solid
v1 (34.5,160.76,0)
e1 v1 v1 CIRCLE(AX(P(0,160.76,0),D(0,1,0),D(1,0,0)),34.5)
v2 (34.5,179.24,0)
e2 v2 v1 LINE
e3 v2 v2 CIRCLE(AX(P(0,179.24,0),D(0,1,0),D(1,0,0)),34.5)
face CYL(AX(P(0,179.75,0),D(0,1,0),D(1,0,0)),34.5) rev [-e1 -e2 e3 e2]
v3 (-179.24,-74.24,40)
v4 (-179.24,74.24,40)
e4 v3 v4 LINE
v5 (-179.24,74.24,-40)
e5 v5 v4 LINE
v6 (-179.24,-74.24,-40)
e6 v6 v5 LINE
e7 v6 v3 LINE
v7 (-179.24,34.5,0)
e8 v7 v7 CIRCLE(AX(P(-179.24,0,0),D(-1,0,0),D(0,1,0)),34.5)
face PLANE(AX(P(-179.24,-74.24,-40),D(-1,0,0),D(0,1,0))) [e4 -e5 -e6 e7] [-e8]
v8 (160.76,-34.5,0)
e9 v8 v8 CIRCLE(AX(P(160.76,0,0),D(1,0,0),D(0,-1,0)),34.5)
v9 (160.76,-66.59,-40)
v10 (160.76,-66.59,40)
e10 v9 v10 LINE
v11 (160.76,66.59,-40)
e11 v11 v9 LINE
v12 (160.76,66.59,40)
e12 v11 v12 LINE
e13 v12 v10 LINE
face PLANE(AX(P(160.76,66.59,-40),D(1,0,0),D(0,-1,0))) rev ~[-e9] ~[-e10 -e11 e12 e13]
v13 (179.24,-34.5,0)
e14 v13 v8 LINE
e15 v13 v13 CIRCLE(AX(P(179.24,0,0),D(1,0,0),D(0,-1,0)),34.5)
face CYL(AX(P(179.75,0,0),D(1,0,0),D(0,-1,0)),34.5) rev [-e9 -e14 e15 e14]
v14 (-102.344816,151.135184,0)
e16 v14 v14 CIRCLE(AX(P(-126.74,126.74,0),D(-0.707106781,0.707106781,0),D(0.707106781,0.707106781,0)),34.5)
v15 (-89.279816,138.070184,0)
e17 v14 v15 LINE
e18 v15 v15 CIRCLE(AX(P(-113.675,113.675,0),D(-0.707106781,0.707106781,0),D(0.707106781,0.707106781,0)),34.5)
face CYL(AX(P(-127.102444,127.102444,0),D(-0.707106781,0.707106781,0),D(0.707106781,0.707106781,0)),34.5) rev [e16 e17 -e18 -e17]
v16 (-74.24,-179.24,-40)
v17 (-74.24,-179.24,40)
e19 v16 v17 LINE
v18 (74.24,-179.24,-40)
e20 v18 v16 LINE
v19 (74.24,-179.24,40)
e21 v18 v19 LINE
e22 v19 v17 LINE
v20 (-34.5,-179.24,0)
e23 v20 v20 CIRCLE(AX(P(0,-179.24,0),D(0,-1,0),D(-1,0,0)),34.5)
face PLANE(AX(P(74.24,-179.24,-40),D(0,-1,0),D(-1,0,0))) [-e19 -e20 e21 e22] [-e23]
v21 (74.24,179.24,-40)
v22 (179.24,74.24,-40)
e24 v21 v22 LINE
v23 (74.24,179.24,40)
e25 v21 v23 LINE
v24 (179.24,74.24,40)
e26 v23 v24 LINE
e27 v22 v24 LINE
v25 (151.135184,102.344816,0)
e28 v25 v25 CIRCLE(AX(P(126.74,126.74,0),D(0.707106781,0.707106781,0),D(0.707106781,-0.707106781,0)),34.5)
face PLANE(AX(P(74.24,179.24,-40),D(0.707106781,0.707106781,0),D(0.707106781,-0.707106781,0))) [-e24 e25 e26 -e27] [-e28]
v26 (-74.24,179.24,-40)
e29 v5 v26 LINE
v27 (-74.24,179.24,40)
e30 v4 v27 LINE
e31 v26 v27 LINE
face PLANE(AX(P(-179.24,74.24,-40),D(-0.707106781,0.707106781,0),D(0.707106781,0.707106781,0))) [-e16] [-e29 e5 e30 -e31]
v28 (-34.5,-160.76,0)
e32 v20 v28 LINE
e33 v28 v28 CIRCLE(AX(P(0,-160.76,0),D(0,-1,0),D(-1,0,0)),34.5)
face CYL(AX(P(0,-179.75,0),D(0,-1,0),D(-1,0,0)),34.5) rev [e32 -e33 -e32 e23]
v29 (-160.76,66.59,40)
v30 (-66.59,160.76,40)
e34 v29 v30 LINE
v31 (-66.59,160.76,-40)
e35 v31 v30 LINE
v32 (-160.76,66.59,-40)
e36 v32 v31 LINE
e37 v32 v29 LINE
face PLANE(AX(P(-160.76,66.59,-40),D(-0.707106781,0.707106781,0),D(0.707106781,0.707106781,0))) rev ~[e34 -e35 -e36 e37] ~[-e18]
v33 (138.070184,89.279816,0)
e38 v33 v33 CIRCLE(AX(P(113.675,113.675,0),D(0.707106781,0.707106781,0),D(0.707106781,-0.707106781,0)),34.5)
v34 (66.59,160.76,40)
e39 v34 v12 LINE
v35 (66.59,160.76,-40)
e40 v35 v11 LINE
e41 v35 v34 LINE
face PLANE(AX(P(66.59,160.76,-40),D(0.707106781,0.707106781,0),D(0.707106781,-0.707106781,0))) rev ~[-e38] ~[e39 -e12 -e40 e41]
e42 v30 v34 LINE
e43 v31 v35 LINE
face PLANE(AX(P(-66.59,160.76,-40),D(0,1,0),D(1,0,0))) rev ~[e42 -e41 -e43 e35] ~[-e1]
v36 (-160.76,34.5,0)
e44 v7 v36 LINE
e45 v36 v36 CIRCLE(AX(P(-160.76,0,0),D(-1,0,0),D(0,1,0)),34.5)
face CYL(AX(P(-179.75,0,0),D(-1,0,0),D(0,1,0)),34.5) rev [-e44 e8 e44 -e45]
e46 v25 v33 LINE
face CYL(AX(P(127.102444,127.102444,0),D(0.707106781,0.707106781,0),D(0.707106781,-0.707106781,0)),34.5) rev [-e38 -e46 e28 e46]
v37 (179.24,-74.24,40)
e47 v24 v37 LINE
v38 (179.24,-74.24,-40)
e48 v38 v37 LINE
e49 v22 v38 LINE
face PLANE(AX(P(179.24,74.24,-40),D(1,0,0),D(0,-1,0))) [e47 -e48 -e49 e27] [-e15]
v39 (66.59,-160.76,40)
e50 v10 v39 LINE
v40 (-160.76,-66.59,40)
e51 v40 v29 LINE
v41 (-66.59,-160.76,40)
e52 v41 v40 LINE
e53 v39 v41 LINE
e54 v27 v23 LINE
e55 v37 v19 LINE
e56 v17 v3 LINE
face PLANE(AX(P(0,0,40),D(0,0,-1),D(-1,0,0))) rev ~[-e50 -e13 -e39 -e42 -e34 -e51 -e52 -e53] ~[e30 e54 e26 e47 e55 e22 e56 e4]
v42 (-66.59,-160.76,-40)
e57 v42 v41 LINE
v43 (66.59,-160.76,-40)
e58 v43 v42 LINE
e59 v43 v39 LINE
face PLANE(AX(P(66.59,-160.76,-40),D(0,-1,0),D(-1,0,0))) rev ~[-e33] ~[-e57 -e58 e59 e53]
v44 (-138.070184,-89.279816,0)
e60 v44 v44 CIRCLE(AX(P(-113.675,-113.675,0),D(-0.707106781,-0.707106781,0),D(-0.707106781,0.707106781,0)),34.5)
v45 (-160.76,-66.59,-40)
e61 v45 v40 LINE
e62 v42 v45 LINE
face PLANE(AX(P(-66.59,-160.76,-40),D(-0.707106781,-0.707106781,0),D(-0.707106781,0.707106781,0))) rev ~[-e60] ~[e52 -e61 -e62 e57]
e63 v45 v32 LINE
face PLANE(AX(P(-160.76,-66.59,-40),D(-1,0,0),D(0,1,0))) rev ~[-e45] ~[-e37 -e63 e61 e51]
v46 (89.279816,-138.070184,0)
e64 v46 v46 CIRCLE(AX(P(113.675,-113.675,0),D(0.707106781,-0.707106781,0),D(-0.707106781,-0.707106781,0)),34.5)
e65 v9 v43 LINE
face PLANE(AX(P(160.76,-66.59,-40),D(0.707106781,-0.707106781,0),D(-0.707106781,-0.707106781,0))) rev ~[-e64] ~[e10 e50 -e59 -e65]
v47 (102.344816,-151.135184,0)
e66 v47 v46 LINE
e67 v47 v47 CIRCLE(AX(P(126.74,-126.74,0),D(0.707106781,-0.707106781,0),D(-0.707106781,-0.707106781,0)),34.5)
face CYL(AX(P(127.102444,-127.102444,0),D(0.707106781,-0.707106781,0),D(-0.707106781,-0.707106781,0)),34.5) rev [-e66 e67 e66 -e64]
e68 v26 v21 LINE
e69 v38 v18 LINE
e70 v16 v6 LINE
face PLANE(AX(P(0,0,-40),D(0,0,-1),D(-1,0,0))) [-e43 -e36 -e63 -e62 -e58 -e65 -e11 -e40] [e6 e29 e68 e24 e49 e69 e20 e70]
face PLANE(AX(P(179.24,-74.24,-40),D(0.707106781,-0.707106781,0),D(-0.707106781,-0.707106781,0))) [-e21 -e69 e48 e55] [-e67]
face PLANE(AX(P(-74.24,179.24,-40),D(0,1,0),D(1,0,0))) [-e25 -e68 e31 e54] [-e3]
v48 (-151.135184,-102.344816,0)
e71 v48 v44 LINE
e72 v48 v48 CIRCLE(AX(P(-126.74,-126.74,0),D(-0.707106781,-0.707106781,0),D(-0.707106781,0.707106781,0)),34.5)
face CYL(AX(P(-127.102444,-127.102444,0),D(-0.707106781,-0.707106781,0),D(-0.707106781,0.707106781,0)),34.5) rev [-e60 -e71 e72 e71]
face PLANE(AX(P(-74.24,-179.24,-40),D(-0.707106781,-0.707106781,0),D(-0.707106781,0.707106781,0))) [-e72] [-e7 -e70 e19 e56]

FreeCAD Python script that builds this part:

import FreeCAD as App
import Part
import Sketcher

doc = App.newDocument("Part")
params = doc.addObject("Spreadsheet::Sheet", "Params")
for row, (alias, value) in enumerate([
    ("sketch1_diameter", "69 mm"),
    ("pad1_length", "20 mm"),
    ("sketch2_diameter", "69 mm"),
    ("pad2_length", "20 mm"),
    ("sketch3_diameter", "69 mm"),
    ("pad3_length", "20 mm"),
    ("sketch4_diameter", "69 mm"),
    ("pad4_length", "20 mm"),
    ("sketch5_diameter", "69 mm"),
    ("pad5_length", "20 mm"),
    ("sketch6_diameter", "69 mm"),
    ("pad6_length", "20 mm"),
    ("sketch7_diameter", "69 mm"),
    ("pad7_length", "20 mm"),
    ("sketch8_diameter", "69 mm"),
    ("pad8_length", "20 mm"),
    ("sketch9_width", "133.18 mm"),
    ("pad9_length", "80 mm"),
    ("sketch10_width", "148.48 mm"),
    ("pad10_length", "80 mm"),
], start=1):
    params.set(f"A{row}", alias)
    params.set(f"B{row}", "=" + value)
    params.setAlias(f"B{row}", alias)

body = doc.addObject("PartDesign::Body", "Body")

sketch1 = doc.addObject("Sketcher::SketchObject", "Sketch")
body.addObject(sketch1)
sketch1.AttachmentSupport = (doc.XZ_Plane, [""])
sketch1.MapMode = "FlatFace"
sketch1.AttachmentOffset = App.Placement(App.Vector(0, 0, -179.75), App.Rotation())
sketch1.addGeometry(Part.Circle(App.Vector(0, 0, 0), App.Vector(0, 0, 1), 34), False)
sketch1.addConstraint([
    Sketcher.Constraint("Coincident", 0, 3, -1, 1),
    Sketcher.Constraint("Diameter", 0, 69.0),
])
sketch1.setExpression("Constraints[1]", "Params.sketch1_diameter")
pad1 = doc.addObject("PartDesign::Pad", "Pad")
body.addObject(pad1)
pad1.Profile = sketch1
pad1.setExpression("Length", "Params.pad1_length")
body2 = doc.addObject("PartDesign::Body", "Body001")
doc.recompute()

body.Placement = App.Placement(App.Vector(0, 0, 0), App.Rotation(App.Vector(0, 0, 1), 45))
boolean = doc.addObject("PartDesign::Boolean", "Boolean")
body2.addObject(boolean)
boolean.Type = "Fuse"
boolean.addObjects([body])
body3 = doc.addObject("PartDesign::Body", "Body002")

sketch2 = doc.addObject("Sketcher::SketchObject", "Sketch001")
body3.addObject(sketch2)
sketch2.AttachmentSupport = (doc.getObject("XZ_Plane002"), [""])
sketch2.MapMode = "FlatFace"
sketch2.AttachmentOffset = App.Placement(App.Vector(0, 0, -179.75), App.Rotation())
sketch2.addGeometry(Part.Circle(App.Vector(0, 0, 0), App.Vector(0, 0, 1), 34), False)
sketch2.addConstraint([
    Sketcher.Constraint("Coincident", 0, 3, -1, 1),
    Sketcher.Constraint("Diameter", 0, 69.0),
])
sketch2.setExpression("Constraints[1]", "Params.sketch2_diameter")
pad2 = doc.addObject("PartDesign::Pad", "Pad001")
body3.addObject(pad2)
pad2.Profile = sketch2
pad2.setExpression("Length", "Params.pad2_length")
body4 = doc.addObject("PartDesign::Body", "Body003")
doc.recompute()

body3.Placement = App.Placement(App.Vector(0, 0, 0), App.Rotation(App.Vector(0, 0, 1), 90))
boolean2 = doc.addObject("PartDesign::Boolean", "Boolean001")
body4.addObject(boolean2)
boolean2.Type = "Fuse"
boolean2.addObjects([body3])
body5 = doc.addObject("PartDesign::Body", "Body004")

sketch3 = doc.addObject("Sketcher::SketchObject", "Sketch002")
body5.addObject(sketch3)
sketch3.AttachmentSupport = (doc.getObject("XZ_Plane004"), [""])
sketch3.MapMode = "FlatFace"
sketch3.AttachmentOffset = App.Placement(App.Vector(0, 0, -179.75), App.Rotation())
sketch3.addGeometry(Part.Circle(App.Vector(0, 0, 0), App.Vector(0, 0, 1), 34), False)
sketch3.addConstraint([
    Sketcher.Constraint("Coincident", 0, 3, -1, 1),
    Sketcher.Constraint("Diameter", 0, 69.0),
])
sketch3.setExpression("Constraints[1]", "Params.sketch3_diameter")
pad3 = doc.addObject("PartDesign::Pad", "Pad002")
body5.addObject(pad3)
pad3.Profile = sketch3
pad3.setExpression("Length", "Params.pad3_length")
body6 = doc.addObject("PartDesign::Body", "Body005")
doc.recompute()

body5.Placement = App.Placement(App.Vector(0, 0, 0), App.Rotation(App.Vector(0, 0, 1), 135))
boolean3 = doc.addObject("PartDesign::Boolean", "Boolean002")
body6.addObject(boolean3)
boolean3.Type = "Fuse"
boolean3.addObjects([body5])
body7 = doc.addObject("PartDesign::Body", "Body006")

sketch4 = doc.addObject("Sketcher::SketchObject", "Sketch003")
body7.addObject(sketch4)
sketch4.AttachmentSupport = (doc.getObject("XZ_Plane006"), [""])
sketch4.MapMode = "FlatFace"
sketch4.AttachmentOffset = App.Placement(App.Vector(0, 0, -179.75), App.Rotation())
sketch4.addGeometry(Part.Circle(App.Vector(0, 0, 0), App.Vector(0, 0, 1), 34), False)
sketch4.addConstraint([
    Sketcher.Constraint("Coincident", 0, 3, -1, 1),
    Sketcher.Constraint("Diameter", 0, 69.0),
])
sketch4.setExpression("Constraints[1]", "Params.sketch4_diameter")
pad4 = doc.addObject("PartDesign::Pad", "Pad003")
body7.addObject(pad4)
pad4.Profile = sketch4
pad4.setExpression("Length", "Params.pad4_length")
body8 = doc.addObject("PartDesign::Body", "Body007")
doc.recompute()

body7.Placement = App.Placement(App.Vector(0, 0, 0), App.Rotation(App.Vector(0, 0, 1), 180))
boolean4 = doc.addObject("PartDesign::Boolean", "Boolean003")
body8.addObject(boolean4)
boolean4.Type = "Fuse"
boolean4.addObjects([body7])
body9 = doc.addObject("PartDesign::Body", "Body008")

sketch5 = doc.addObject("Sketcher::SketchObject", "Sketch004")
body9.addObject(sketch5)
sketch5.AttachmentSupport = (doc.getObject("XZ_Plane008"), [""])
sketch5.MapMode = "FlatFace"
sketch5.AttachmentOffset = App.Placement(App.Vector(0, 0, -179.75), App.Rotation())
sketch5.addGeometry(Part.Circle(App.Vector(0, 0, 0), App.Vector(0, 0, 1), 34), False)
sketch5.addConstraint([
    Sketcher.Constraint("Coincident", 0, 3, -1, 1),
    Sketcher.Constraint("Diameter", 0, 69.0),
])
sketch5.setExpression("Constraints[1]", "Params.sketch5_diameter")
pad5 = doc.addObject("PartDesign::Pad", "Pad004")
body9.addObject(pad5)
pad5.Profile = sketch5
pad5.setExpression("Length", "Params.pad5_length")
body10 = doc.addObject("PartDesign::Body", "Body009")
doc.recompute()

body9.Placement = App.Placement(App.Vector(0, 0, 0), App.Rotation(App.Vector(0, 0, 1), 225))
boolean5 = doc.addObject("PartDesign::Boolean", "Boolean004")
body10.addObject(boolean5)
boolean5.Type = "Fuse"
boolean5.addObjects([body9])
body11 = doc.addObject("PartDesign::Body", "Body010")

sketch6 = doc.addObject("Sketcher::SketchObject", "Sketch005")
body11.addObject(sketch6)
sketch6.AttachmentSupport = (doc.getObject("XZ_Plane010"), [""])
sketch6.MapMode = "FlatFace"
sketch6.AttachmentOffset = App.Placement(App.Vector(0, 0, -179.75), App.Rotation())
sketch6.addGeometry(Part.Circle(App.Vector(0, 0, 0), App.Vector(0, 0, 1), 34), False)
sketch6.addConstraint([
    Sketcher.Constraint("Coincident", 0, 3, -1, 1),
    Sketcher.Constraint("Diameter", 0, 69.0),
])
sketch6.setExpression("Constraints[1]", "Params.sketch6_diameter")
pad6 = doc.addObject("PartDesign::Pad", "Pad005")
body11.addObject(pad6)
pad6.Profile = sketch6
pad6.setExpression("Length", "Params.pad6_length")
body12 = doc.addObject("PartDesign::Body", "Body011")
doc.recompute()

body11.Placement = App.Placement(App.Vector(0, 0, 0), App.Rotation(App.Vector(0, 0, 1), 270))
boolean6 = doc.addObject("PartDesign::Boolean", "Boolean005")
body12.addObject(boolean6)
boolean6.Type = "Fuse"
boolean6.addObjects([body11])
body13 = doc.addObject("PartDesign::Body", "Body012")

sketch7 = doc.addObject("Sketcher::SketchObject", "Sketch006")
body13.addObject(sketch7)
sketch7.AttachmentSupport = (doc.getObject("XZ_Plane012"), [""])
sketch7.MapMode = "FlatFace"
sketch7.AttachmentOffset = App.Placement(App.Vector(0, 0, -179.75), App.Rotation())
sketch7.addGeometry(Part.Circle(App.Vector(0, 0, 0), App.Vector(0, 0, 1), 34), False)
sketch7.addConstraint([
    Sketcher.Constraint("Coincident", 0, 3, -1, 1),
    Sketcher.Constraint("Diameter", 0, 69.0),
])
sketch7.setExpression("Constraints[1]", "Params.sketch7_diameter")
pad7 = doc.addObject("PartDesign::Pad", "Pad006")
body13.addObject(pad7)
pad7.Profile = sketch7
pad7.setExpression("Length", "Params.pad7_length")
body14 = doc.addObject("PartDesign::Body", "Body013")
doc.recompute()

body13.Placement = App.Placement(App.Vector(0, 0, 0), App.Rotation(App.Vector(0, 0, 1), 315))
boolean7 = doc.addObject("PartDesign::Boolean", "Boolean006")
body14.addObject(boolean7)
boolean7.Type = "Fuse"
boolean7.addObjects([body13])
body15 = doc.addObject("PartDesign::Body", "Body014")
body15.AllowCompound = True

sketch8 = doc.addObject("Sketcher::SketchObject", "Sketch007")
body15.addObject(sketch8)
sketch8.AttachmentSupport = (doc.getObject("XZ_Plane014"), [""])
sketch8.MapMode = "FlatFace"
sketch8.AttachmentOffset = App.Placement(App.Vector(0, 0, -179.75), App.Rotation())
sketch8.addGeometry(Part.Circle(App.Vector(0, 0, 0), App.Vector(0, 0, 1), 34), False)
sketch8.addConstraint([
    Sketcher.Constraint("Coincident", 0, 3, -1, 1),
    Sketcher.Constraint("Diameter", 0, 69.0),
])
sketch8.setExpression("Constraints[1]", "Params.sketch8_diameter")
pad8 = doc.addObject("PartDesign::Pad", "Pad007")
body15.addObject(pad8)
pad8.Profile = sketch8
pad8.setExpression("Length", "Params.pad8_length")
doc.recompute()

boolean8 = doc.addObject("PartDesign::Boolean", "Boolean007")
body15.addObject(boolean8)
boolean8.Type = "Fuse"
boolean8.addObjects([body2])
doc.recompute()

boolean9 = doc.addObject("PartDesign::Boolean", "Boolean008")
body15.addObject(boolean9)
boolean9.Type = "Fuse"
boolean9.addObjects([body4])
doc.recompute()

boolean10 = doc.addObject("PartDesign::Boolean", "Boolean009")
body15.addObject(boolean10)
boolean10.Type = "Fuse"
boolean10.addObjects([body6])
doc.recompute()

boolean11 = doc.addObject("PartDesign::Boolean", "Boolean010")
body15.addObject(boolean11)
boolean11.Type = "Fuse"
boolean11.addObjects([body8])
doc.recompute()

boolean12 = doc.addObject("PartDesign::Boolean", "Boolean011")
body15.addObject(boolean12)
boolean12.Type = "Fuse"
boolean12.addObjects([body10])
doc.recompute()

boolean13 = doc.addObject("PartDesign::Boolean", "Boolean012")
body15.addObject(boolean13)
boolean13.Type = "Fuse"
boolean13.addObjects([body12])
doc.recompute()

boolean14 = doc.addObject("PartDesign::Boolean", "Boolean013")
body15.addObject(boolean14)
boolean14.Type = "Fuse"
boolean14.addObjects([body14])
body16 = doc.addObject("PartDesign::Body", "Body015")

sketch9 = doc.addObject("Sketcher::SketchObject", "Sketch008")
body16.addObject(sketch9)
sketch9.AttachmentSupport = (doc.getObject("XY_Plane015"), [""])
sketch9.MapMode = "FlatFace"
sketch9.AttachmentOffset = App.Placement(App.Vector(0, 0, -40), App.Rotation())
sketch9.addGeometry([
    Part.LineSegment(App.Vector(161, 67, 0), App.Vector(67, 161, 0)),
    Part.LineSegment(App.Vector(67, 161, 0), App.Vector(-67, 161, 0)),
    Part.LineSegment(App.Vector(-67, 161, 0), App.Vector(-161, 67, 0)),
    Part.LineSegment(App.Vector(-161, 67, 0), App.Vector(-161, -67, 0)),
    Part.LineSegment(App.Vector(-161, -67, 0), App.Vector(-67, -161, 0)),
    Part.LineSegment(App.Vector(-67, -161, 0), App.Vector(67, -161, 0)),
    Part.LineSegment(App.Vector(67, -161, 0), App.Vector(161, -67, 0)),
    Part.LineSegment(App.Vector(161, -67, 0), App.Vector(161, 67, 0)),
], False)
sketch9.addConstraint([
    Sketcher.Constraint("Coincident", 0, 2, 1, 1),
    Sketcher.Constraint("Coincident", 1, 2, 2, 1),
    Sketcher.Constraint("Coincident", 2, 2, 3, 1),
    Sketcher.Constraint("Coincident", 3, 2, 4, 1),
    Sketcher.Constraint("Coincident", 4, 2, 5, 1),
    Sketcher.Constraint("Coincident", 5, 2, 6, 1),
    Sketcher.Constraint("Coincident", 6, 2, 7, 1),
    Sketcher.Constraint("Coincident", 7, 2, 0, 1),
    Sketcher.Constraint("Horizontal", 1),
    Sketcher.Constraint("Vertical", 3),
    Sketcher.Constraint("Horizontal", 5),
    Sketcher.Constraint("Vertical", 7),
    Sketcher.Constraint("Symmetric", 0, 2, 4, 2, -1, 1),
    Sketcher.Constraint("Symmetric", 2, 2, 6, 2, -1, 1),
    Sketcher.Constraint("Perpendicular", 0, 2),
    Sketcher.Constraint("Perpendicular", 2, 4),
    Sketcher.Constraint("Perpendicular", 4, 6),
    Sketcher.Constraint("Horizontal", 3, 2, 6, 2),
    Sketcher.Constraint("Vertical", 1, 2, 4, 2),
    Sketcher.Constraint("Equal", 5, 3),
    Sketcher.Constraint("DistanceX", 1, 2, 1, 1, 133.18),
    Sketcher.Constraint("DistanceY", -1, 1, 0, 2, 160.76),
])
sketch9.setExpression("Constraints[20]", "Params.sketch9_width")
pad9 = doc.addObject("PartDesign::Pad", "Pad008")
body16.addObject(pad9)
pad9.Profile = sketch9
pad9.setExpression("Length", "Params.pad9_length")
body17 = doc.addObject("PartDesign::Body", "Body016")

sketch10 = doc.addObject("Sketcher::SketchObject", "Sketch009")
body17.addObject(sketch10)
sketch10.AttachmentSupport = (doc.getObject("XY_Plane016"), [""])
sketch10.MapMode = "FlatFace"
sketch10.AttachmentOffset = App.Placement(App.Vector(0, 0, -40), App.Rotation())
sketch10.addGeometry([
    Part.LineSegment(App.Vector(179, 74, 0), App.Vector(74, 179, 0)),
    Part.LineSegment(App.Vector(74, 179, 0), App.Vector(-74, 179, 0)),
    Part.LineSegment(App.Vector(-74, 179, 0), App.Vector(-179, 74, 0)),
    Part.LineSegment(App.Vector(-179, 74, 0), App.Vector(-179, -74, 0)),
    Part.LineSegment(App.Vector(-179, -74, 0), App.Vector(-74, -179, 0)),
    Part.LineSegment(App.Vector(-74, -179, 0), App.Vector(74, -179, 0)),
    Part.LineSegment(App.Vector(74, -179, 0), App.Vector(179, -74, 0)),
    Part.LineSegment(App.Vector(179, -74, 0), App.Vector(179, 74, 0)),
], False)
sketch10.addConstraint([
    Sketcher.Constraint("Coincident", 0, 2, 1, 1),
    Sketcher.Constraint("Coincident", 1, 2, 2, 1),
    Sketcher.Constraint("Coincident", 2, 2, 3, 1),
    Sketcher.Constraint("Coincident", 3, 2, 4, 1),
    Sketcher.Constraint("Coincident", 4, 2, 5, 1),
    Sketcher.Constraint("Coincident", 5, 2, 6, 1),
    Sketcher.Constraint("Coincident", 6, 2, 7, 1),
    Sketcher.Constraint("Coincident", 7, 2, 0, 1),
    Sketcher.Constraint("Horizontal", 1),
    Sketcher.Constraint("Vertical", 3),
    Sketcher.Constraint("Horizontal", 5),
    Sketcher.Constraint("Vertical", 7),
    Sketcher.Constraint("Symmetric", 0, 2, 4, 2, -1, 1),
    Sketcher.Constraint("Symmetric", 2, 2, 6, 2, -1, 1),
    Sketcher.Constraint("Perpendicular", 0, 2),
    Sketcher.Constraint("Perpendicular", 2, 4),
    Sketcher.Constraint("Perpendicular", 4, 6),
    Sketcher.Constraint("Horizontal", 3, 2, 6, 2),
    Sketcher.Constraint("Vertical", 1, 2, 4, 2),
    Sketcher.Constraint("Equal", 5, 3),
    Sketcher.Constraint("DistanceX", 2, 2, 1, 2, 105.0),
    Sketcher.Constraint("DistanceX", 1, 2, 1, 1, 148.48),
])
sketch10.setExpression("Constraints[21]", "Params.sketch10_width")
pad10 = doc.addObject("PartDesign::Pad", "Pad009")
body17.addObject(pad10)
pad10.Profile = sketch10
pad10.setExpression("Length", "Params.pad10_length")
doc.recompute()

boolean15 = doc.addObject("PartDesign::Boolean", "Boolean014")
body17.addObject(boolean15)
boolean15.Type = "Cut"
boolean15.addObjects([body16])
doc.recompute()

boolean16 = doc.addObject("PartDesign::Boolean", "Boolean015")
body17.addObject(boolean16)
boolean16.Type = "Cut"
boolean16.addObjects([body15])

doc.recompute()
